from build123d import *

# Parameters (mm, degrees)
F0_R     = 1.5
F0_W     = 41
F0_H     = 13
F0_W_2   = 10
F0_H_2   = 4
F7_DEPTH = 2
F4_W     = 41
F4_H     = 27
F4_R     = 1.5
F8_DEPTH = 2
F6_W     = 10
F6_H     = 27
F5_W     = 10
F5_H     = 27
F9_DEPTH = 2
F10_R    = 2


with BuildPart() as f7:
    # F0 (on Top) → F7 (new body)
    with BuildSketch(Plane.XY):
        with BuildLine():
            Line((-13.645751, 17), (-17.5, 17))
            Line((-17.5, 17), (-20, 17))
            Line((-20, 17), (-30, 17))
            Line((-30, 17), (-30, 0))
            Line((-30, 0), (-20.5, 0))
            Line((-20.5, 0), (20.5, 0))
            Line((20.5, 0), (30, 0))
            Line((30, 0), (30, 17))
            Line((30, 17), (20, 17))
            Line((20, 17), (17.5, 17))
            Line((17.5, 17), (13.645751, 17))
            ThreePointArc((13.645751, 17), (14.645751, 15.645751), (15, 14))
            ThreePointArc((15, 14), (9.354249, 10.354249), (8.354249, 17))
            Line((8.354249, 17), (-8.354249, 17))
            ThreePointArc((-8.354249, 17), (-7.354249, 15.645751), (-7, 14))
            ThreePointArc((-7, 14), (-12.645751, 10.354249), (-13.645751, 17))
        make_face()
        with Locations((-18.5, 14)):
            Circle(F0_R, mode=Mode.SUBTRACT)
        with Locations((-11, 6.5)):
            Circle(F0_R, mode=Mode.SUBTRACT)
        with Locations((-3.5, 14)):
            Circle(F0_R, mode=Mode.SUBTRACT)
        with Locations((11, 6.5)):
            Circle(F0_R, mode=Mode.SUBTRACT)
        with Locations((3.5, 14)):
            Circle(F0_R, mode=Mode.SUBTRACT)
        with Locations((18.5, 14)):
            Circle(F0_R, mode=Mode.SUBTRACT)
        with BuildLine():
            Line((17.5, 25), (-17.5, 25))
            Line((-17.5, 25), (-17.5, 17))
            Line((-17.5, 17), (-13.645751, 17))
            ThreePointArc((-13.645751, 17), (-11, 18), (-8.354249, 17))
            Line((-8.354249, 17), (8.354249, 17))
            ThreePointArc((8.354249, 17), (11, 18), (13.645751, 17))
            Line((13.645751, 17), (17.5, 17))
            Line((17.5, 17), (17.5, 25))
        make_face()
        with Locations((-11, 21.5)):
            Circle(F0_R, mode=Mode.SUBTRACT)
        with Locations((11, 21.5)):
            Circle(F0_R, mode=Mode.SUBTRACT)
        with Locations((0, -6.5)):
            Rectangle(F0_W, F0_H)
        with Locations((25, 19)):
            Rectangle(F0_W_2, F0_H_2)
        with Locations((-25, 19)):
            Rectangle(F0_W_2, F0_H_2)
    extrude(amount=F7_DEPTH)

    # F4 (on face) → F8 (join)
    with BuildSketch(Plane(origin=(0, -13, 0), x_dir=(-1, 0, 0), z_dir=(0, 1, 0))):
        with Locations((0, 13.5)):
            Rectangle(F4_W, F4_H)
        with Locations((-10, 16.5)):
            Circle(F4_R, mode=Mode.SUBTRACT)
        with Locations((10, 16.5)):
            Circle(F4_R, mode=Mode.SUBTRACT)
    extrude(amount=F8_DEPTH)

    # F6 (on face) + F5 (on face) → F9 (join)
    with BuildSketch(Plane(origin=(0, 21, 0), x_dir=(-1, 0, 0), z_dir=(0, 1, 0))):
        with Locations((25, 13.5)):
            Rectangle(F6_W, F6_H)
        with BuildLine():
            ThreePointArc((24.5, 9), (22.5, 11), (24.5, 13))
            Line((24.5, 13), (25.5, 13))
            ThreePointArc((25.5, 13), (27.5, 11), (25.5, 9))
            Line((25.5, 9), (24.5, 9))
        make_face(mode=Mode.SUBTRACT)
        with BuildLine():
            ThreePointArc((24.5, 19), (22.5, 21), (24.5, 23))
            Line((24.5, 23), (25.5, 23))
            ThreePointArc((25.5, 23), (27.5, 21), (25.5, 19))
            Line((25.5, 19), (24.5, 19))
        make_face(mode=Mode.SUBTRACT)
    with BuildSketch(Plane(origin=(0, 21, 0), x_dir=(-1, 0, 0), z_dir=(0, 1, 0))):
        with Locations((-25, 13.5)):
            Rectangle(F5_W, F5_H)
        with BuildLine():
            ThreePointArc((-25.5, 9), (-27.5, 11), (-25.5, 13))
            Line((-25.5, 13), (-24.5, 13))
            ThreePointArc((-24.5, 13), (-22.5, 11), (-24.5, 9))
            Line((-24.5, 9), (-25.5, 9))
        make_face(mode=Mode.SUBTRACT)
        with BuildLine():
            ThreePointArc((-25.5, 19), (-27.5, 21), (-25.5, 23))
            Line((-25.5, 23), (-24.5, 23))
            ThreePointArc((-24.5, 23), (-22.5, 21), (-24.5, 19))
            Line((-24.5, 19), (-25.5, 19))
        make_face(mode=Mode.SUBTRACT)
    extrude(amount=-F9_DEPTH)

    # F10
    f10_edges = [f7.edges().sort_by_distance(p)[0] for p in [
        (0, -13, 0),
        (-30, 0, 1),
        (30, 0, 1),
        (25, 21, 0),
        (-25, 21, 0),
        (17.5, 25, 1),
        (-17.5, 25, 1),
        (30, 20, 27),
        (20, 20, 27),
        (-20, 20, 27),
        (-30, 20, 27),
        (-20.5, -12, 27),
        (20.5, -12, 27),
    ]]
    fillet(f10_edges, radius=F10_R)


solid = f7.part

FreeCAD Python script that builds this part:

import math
import FreeCAD as App
import Part
import Sketcher

V = App.Vector


def edges_at(feature, points):
    """Names of the edges that pass closest to the given points."""
    edges = feature.Shape.Edges
    near = lambda p: min(range(len(edges)), key=lambda i: edges[i].distToShape(Part.Vertex(*p))[0])
    return sorted({f"Edge{near(p) + 1}" for p in points})

doc = App.newDocument("Part")
params = doc.addObject("Spreadsheet::Sheet", "Params")
for row, (alias, value) in enumerate([
    ("sketch1_diameter", "3 mm"),
    ("sketch1_radius", "4 mm"),
    ("sketch1_width", "10 mm"),
    ("sketch1_width2", "41 mm"),
    ("sketch1_width3", "35 mm"),
    ("pad1_length", "2 mm"),
    ("sketch2_diameter", "3 mm"),
    ("sketch2_width", "41 mm"),
    ("sketch2_height", "27 mm"),
    ("pad2_length", "2 mm"),
    ("sketch3_radius", "2 mm"),
    ("sketch3_width", "10 mm"),
    ("sketch3_width2", "1 mm"),
    ("sketch3_height", "27 mm"),
    ("pad3_length", "2 mm"),
    ("fillet_radius", "2 mm"),
], start=1):
    params.set(f"A{row}", alias)
    params.set(f"B{row}", "=" + value)
    params.setAlias(f"B{row}", alias)

body = doc.addObject("PartDesign::Body", "Body")

# Sketch on XY plane
sketch1 = body.newObject("Sketcher::SketchObject", "Sketch")
sketch1.AttachmentSupport = (doc.getObject("XY_Plane"), [""])
sketch1.MapMode = "FlatFace"
sketch1.addGeometry(Part.LineSegment(V(-17.5, 17, 0), V(-20, 17, 0)), False)
sketch1.addGeometry(Part.LineSegment(V(-20, 17, 0), V(-20, 21, 0)), False)
sketch1.addGeometry(Part.LineSegment(V(-20, 21, 0), V(-30, 21, 0)), False)
sketch1.addGeometry(Part.LineSegment(V(-30, 21, 0), V(-30, 0, 0)), False)
sketch1.addGeometry(Part.LineSegment(V(-30, 0, 0), V(-20.5, 0, 0)), False)
sketch1.addGeometry(Part.LineSegment(V(-20.5, 0, 0), V(-20.5, -13, 0)), False)
sketch1.addGeometry(Part.LineSegment(V(-20.5, -13, 0), V(20.5, -13, 0)), False)
sketch1.addGeometry(Part.LineSegment(V(20.5, -13, 0), V(20.5, 0, 0)), False)
sketch1.addGeometry(Part.LineSegment(V(20.5, 0, 0), V(30, 0, 0)), False)
sketch1.addGeometry(Part.LineSegment(V(30, 0, 0), V(30, 21, 0)), False)
sketch1.addGeometry(Part.LineSegment(V(30, 21, 0), V(20, 21, 0)), False)
sketch1.addGeometry(Part.LineSegment(V(20, 21, 0), V(20, 17, 0)), False)
sketch1.addGeometry(Part.LineSegment(V(20, 17, 0), V(17.5, 17, 0)), False)
sketch1.addGeometry(Part.LineSegment(V(17.5, 17, 0), V(17.5, 25, 0)), False)
sketch1.addGeometry(Part.LineSegment(V(17.5, 25, 0), V(-17.5, 25, 0)), False)
sketch1.addGeometry(Part.LineSegment(V(-17.5, 25, 0), V(-17.5, 17, 0)), False)
sketch1.addGeometry(Part.Circle(V(-11, 6.5, 0), V(0, 0, 1), 1.5), False)
sketch1.addGeometry(Part.Circle(V(11, 6.5, 0), V(0, 0, 1), 1.5), False)
sketch1.addGeometry(Part.Circle(V(-18.5, 14, 0), V(0, 0, 1), 1.5), False)
sketch1.addGeometry(Part.ArcOfCircle(Part.Circle(V(-11, 14, 0), V(0, 0, 1), 4), math.radians(131), math.radians(360)), False)
sketch1.addGeometry(Part.ArcOfCircle(Part.Circle(V(-11, 14, 0), V(0, 0, 1), 4), math.radians(49), math.radians(131)), False)
sketch1.addGeometry(Part.ArcOfCircle(Part.Circle(V(-11, 14, 0), V(0, 0, 1), 4), math.radians(0), math.radians(49)), False)
sketch1.addGeometry(Part.Circle(V(-3.5, 14, 0), V(0, 0, 1), 1.5), False)
sketch1.addGeometry(Part.Circle(V(-11, 21.5, 0), V(0, 0, 1), 1.5), False)
sketch1.addGeometry(Part.Circle(V(3.5, 14, 0), V(0, 0, 1), 1.5), False)
sketch1.addGeometry(Part.ArcOfCircle(Part.Circle(V(11, 14, 0), V(0, 0, 1), 4), math.radians(131), math.radians(360)), False)
sketch1.addGeometry(Part.ArcOfCircle(Part.Circle(V(11, 14, 0), V(0, 0, 1), 4), math.radians(49), math.radians(131)), False)
sketch1.addGeometry(Part.ArcOfCircle(Part.Circle(V(11, 14, 0), V(0, 0, 1), 4), math.radians(0), math.radians(49)), False)
sketch1.addGeometry(Part.Circle(V(18.5, 14, 0), V(0, 0, 1), 1.5), False)
sketch1.addGeometry(Part.Circle(V(11, 21.5, 0), V(0, 0, 1), 1.5), False)
sketch1.addConstraint(Sketcher.Constraint("Coincident", 0, 2, 1, 1))
sketch1.addConstraint(Sketcher.Constraint("Coincident", 1, 2, 2, 1))
sketch1.addConstraint(Sketcher.Constraint("Coincident", 2, 2, 3, 1))
sketch1.addConstraint(Sketcher.Constraint("Coincident", 3, 2, 4, 1))
sketch1.addConstraint(Sketcher.Constraint("Coincident", 4, 2, 5, 1))
sketch1.addConstraint(Sketcher.Constraint("Coincident", 5, 2, 6, 1))
sketch1.addConstraint(Sketcher.Constraint("Coincident", 6, 2, 7, 1))
sketch1.addConstraint(Sketcher.Constraint("Coincident", 7, 2, 8, 1))
sketch1.addConstraint(Sketcher.Constraint("Coincident", 8, 2, 9, 1))
sketch1.addConstraint(Sketcher.Constraint("Coincident", 9, 2, 10, 1))
sketch1.addConstraint(Sketcher.Constraint("Coincident", 10, 2, 11, 1))
sketch1.addConstraint(Sketcher.Constraint("Coincident", 11, 2, 12, 1))
sketch1.addConstraint(Sketcher.Constraint("Coincident", 12, 2, 13, 1))
sketch1.addConstraint(Sketcher.Constraint("Coincident", 13, 2, 14, 1))
sketch1.addConstraint(Sketcher.Constraint("Coincident", 14, 2, 15, 1))
sketch1.addConstraint(Sketcher.Constraint("Coincident", 15, 2, 0, 1))
sketch1.addConstraint(Sketcher.Constraint("Tangent", 19, 1, 20, 2))
sketch1.addConstraint(Sketcher.Constraint("Tangent", 20, 1, 21, 2))
sketch1.addConstraint(Sketcher.Constraint("Tangent", 21, 1, 19, 2))
sketch1.addConstraint(Sketcher.Constraint("Tangent", 25, 1, 26, 2))
sketch1.addConstraint(Sketcher.Constraint("Tangent", 26, 1, 27, 2))
sketch1.addConstraint(Sketcher.Constraint("Tangent", 27, 1, 25, 2))
sketch1.addConstraint(Sketcher.Constraint("Horizontal", 0))
sketch1.addConstraint(Sketcher.Constraint("Vertical", 1))
sketch1.addConstraint(Sketcher.Constraint("Horizontal", 2))
sketch1.addConstraint(Sketcher.Constraint("Vertical", 3))
sketch1.addConstraint(Sketcher.Constraint("Horizontal", 4))
sketch1.addConstraint(Sketcher.Constraint("Vertical", 5))
sketch1.addConstraint(Sketcher.Constraint("Horizontal", 6))
sketch1.addConstraint(Sketcher.Constraint("Vertical", 7))
sketch1.addConstraint(Sketcher.Constraint("Horizontal", 8))
sketch1.addConstraint(Sketcher.Constraint("Vertical", 9))
sketch1.addConstraint(Sketcher.Constraint("Horizontal", 10))
sketch1.addConstraint(Sketcher.Constraint("Vertical", 11))
sketch1.addConstraint(Sketcher.Constraint("Horizontal", 12))
sketch1.addConstraint(Sketcher.Constraint("Vertical", 13))
sketch1.addConstraint(Sketcher.Constraint("Horizontal", 14))
sketch1.addConstraint(Sketcher.Constraint("Vertical", 15))
sketch1.addConstraint(Sketcher.Constraint("Equal", 16, 17))
sketch1.addConstraint(Sketcher.Constraint("Equal", 17, 18))
sketch1.addConstraint(Sketcher.Constraint("Equal", 18, 22))
sketch1.addConstraint(Sketcher.Constraint("Equal", 22, 23))
sketch1.addConstraint(Sketcher.Constraint("Equal", 23, 24))
sketch1.addConstraint(Sketcher.Constraint("Equal", 20, 25))
sketch1.addConstraint(Sketcher.Constraint("Equal", 24, 28))
sketch1.addConstraint(Sketcher.Constraint("Equal", 28, 29))
sketch1.addConstraint(Sketcher.Constraint("Symmetric", 4, 2, 7, 2, -1, 1))
sketch1.addConstraint(Sketcher.Constraint("Symmetric", 16, 3, 17, 3, -2))
sketch1.addConstraint(Sketcher.Constraint("Symmetric", 22, 3, 24, 3, -2))
sketch1.addConstraint(Sketcher.Constraint("Symmetric", 19, 3, 25, 3, -2))
sketch1.addConstraint(Sketcher.Constraint("Symmetric", 18, 3, 28, 3, -2))
sketch1.addConstraint(Sketcher.Constraint("Symmetric", 23, 3, 29, 3, -2))
sketch1.addConstraint(Sketcher.Constraint("Symmetric", 3, 2, 8, 2, -2))
sketch1.addConstraint(Sketcher.Constraint("Symmetric", 1, 2, 10, 2, -2))
sketch1.addConstraint(Sketcher.Constraint("Symmetric", 12, 2, 15, 2, -2))
sketch1.addConstraint(Sketcher.Constraint("Horizontal", 18, 3, 19, 3))
sketch1.addConstraint(Sketcher.Constraint("Horizontal", 21, 3, 22, 3))
sketch1.addConstraint(Sketcher.Constraint("Horizontal", 15, 2, 19, 1))
sketch1.addConstraint(Sketcher.Constraint("Horizontal", 19, 1, 20, 1))
sketch1.addConstraint(Sketcher.Constraint("Horizontal", 28, 3, 21, 1))
sketch1.addConstraint(Sketcher.Constraint("Horizontal", 20, 1, 25, 1))
sketch1.addConstraint(Sketcher.Constraint("Horizontal", 25, 1, 26, 1))
sketch1.addConstraint(Sketcher.Constraint("Horizontal", 21, 1, 27, 1))
sketch1.addConstraint(Sketcher.Constraint("Vertical", 16, 3, 19, 3))
sketch1.addConstraint(Sketcher.Constraint("Vertical", 20, 3, 23, 3))
sketch1.addConstraint(Sketcher.Constraint("Diameter", 16, 3.0))
sketch1.addConstraint(Sketcher.Constraint("Radius", 19, 4.0))
sketch1.addConstraint(Sketcher.Constraint("DistanceX", 2, 2, 2, 1, 10.0))
sketch1.addConstraint(Sketcher.Constraint("DistanceX", 6, 1, 6, 2, 41.0))
sketch1.addConstraint(Sketcher.Constraint("DistanceX", 14, 2, 14, 1, 35.0))
sketch1.addConstraint(Sketcher.Constraint("DistanceY", 1, 1, 1, 2, 4.0))
sketch1.addConstraint(Sketcher.Constraint("DistanceY", 3, 2, 3, 1, 21.0))
sketch1.addConstraint(Sketcher.Constraint("DistanceY", 5, 2, 5, 1, 13.0))
sketch1.addConstraint(Sketcher.Constraint("DistanceY", 13, 1, 13, 2, 8.0))
sketch1.addConstraint(Sketcher.Constraint("DistanceX", 0, 2, 0, 1, 2.5))
sketch1.addConstraint(Sketcher.Constraint("DistanceX", 16, 3, -1, 1, 11.0))
sketch1.addConstraint(Sketcher.Constraint("DistanceY", -1, 1, 18, 3, 14.0))
sketch1.addConstraint(Sketcher.Constraint("DistanceX", 18, 3, 22, 3, 15.0))
sketch1.addConstraint(Sketcher.Constraint("DistanceX", 22, 3, 24, 3, 7.0))
sketch1.addConstraint(Sketcher.Constraint("DistanceY", -1, 1, 16, 3, 6.5))
sketch1.addConstraint(Sketcher.Constraint("DistanceY", -1, 1, 23, 3, 21.5))
sketch1.setExpression("Constraints[65]", "Params.sketch1_diameter")
sketch1.setExpression("Constraints[66]", "Params.sketch1_radius")
sketch1.setExpression("Constraints[67]", "Params.sketch1_width")
sketch1.setExpression("Constraints[68]", "Params.sketch1_width2")
sketch1.setExpression("Constraints[69]", "Params.sketch1_width3")
pad1 = body.newObject("PartDesign::Pad", "Pad")
pad1.Profile = sketch1
pad1.setExpression("Length", "Params.pad1_length")

# Sketch on XZ plane
sketch2 = body.newObject("Sketcher::SketchObject", "Sketch001")
sketch2.AttachmentSupport = (doc.getObject("XZ_Plane"), [""])
sketch2.MapMode = "FlatFace"
sketch2.AttachmentOffset = App.Placement(V(0, 0, 13), App.Rotation())
sketch2.addGeometry(Part.LineSegment(V(20.5, 27, 0), V(20.5, 0, 0)), False)
sketch2.addGeometry(Part.LineSegment(V(20.5, 0, 0), V(-20.5, 0, 0)), False)
sketch2.addGeometry(Part.LineSegment(V(-20.5, 0, 0), V(-20.5, 27, 0)), False)
sketch2.addGeometry(Part.LineSegment(V(-20.5, 27, 0), V(20.5, 27, 0)), False)
sketch2.addGeometry(Part.Circle(V(10, 16.5, 0), V(0, 0, 1), 1.5), False)
sketch2.addGeometry(Part.Circle(V(-10, 16.5, 0), V(0, 0, 1), 1.5), False)
sketch2.addConstraint(Sketcher.Constraint("Coincident", 0, 2, 1, 1))
sketch2.addConstraint(Sketcher.Constraint("Coincident", 1, 2, 2, 1))
sketch2.addConstraint(Sketcher.Constraint("Coincident", 2, 2, 3, 1))
sketch2.addConstraint(Sketcher.Constraint("Coincident", 3, 2, 0, 1))
sketch2.addConstraint(Sketcher.Constraint("Vertical", 0))
sketch2.addConstraint(Sketcher.Constraint("Horizontal", 1))
sketch2.addConstraint(Sketcher.Constraint("Vertical", 2))
sketch2.addConstraint(Sketcher.Constraint("Horizontal", 3))
sketch2.addConstraint(Sketcher.Constraint("Equal", 4, 5))
sketch2.addConstraint(Sketcher.Constraint("Symmetric", 0, 2, 1, 2, -1, 1))
sketch2.addConstraint(Sketcher.Constraint("Symmetric", 4, 3, 5, 3, -2))
sketch2.addConstraint(Sketcher.Constraint("Diameter", 4, 3.0))
sketch2.addConstraint(Sketcher.Constraint("DistanceX", 1, 2, 1, 1, 41.0))
sketch2.addConstraint(Sketcher.Constraint("DistanceY", 0, 2, 0, 1, 27.0))
sketch2.addConstraint(Sketcher.Constraint("DistanceX", -1, 1, 4, 3, 10.0))
sketch2.addConstraint(Sketcher.Constraint("DistanceY", -1, 1, 4, 3, 16.5))
sketch2.setExpression("Constraints[11]", "Params.sketch2_diameter")
sketch2.setExpression("Constraints[12]", "Params.sketch2_width")
sketch2.setExpression("Constraints[13]", "Params.sketch2_height")
pad2 = body.newObject("PartDesign::Pad", "Pad001")
pad2.Profile = sketch2
pad2.setExpression("Length", "Params.pad2_length")
pad2.Reversed = True

# Sketch on XZ plane
sketch3 = body.newObject("Sketcher::SketchObject", "Sketch002")
sketch3.AttachmentSupport = (doc.getObject("XZ_Plane"), [""])
sketch3.MapMode = "FlatFace"
sketch3.AttachmentOffset = App.Placement(V(0, 0, -21), App.Rotation())
sketch3.addGeometry(Part.LineSegment(V(-20, 27, 0), V(-20, 0, 0)), False)
sketch3.addGeometry(Part.LineSegment(V(-20, 0, 0), V(-30, 0, 0)), False)
sketch3.addGeometry(Part.LineSegment(V(-30, 0, 0), V(-30, 27, 0)), False)
sketch3.addGeometry(Part.LineSegment(V(-30, 27, 0), V(-20, 27, 0)), False)
sketch3.addGeometry(Part.LineSegment(V(-25.5, 9, 0), V(-24.5, 9, 0)), False)
sketch3.addGeometry(Part.ArcOfCircle(Part.Circle(V(-24.5, 11, 0), V(0, 0, 1), 2), math.radians(-90), math.radians(90)), False)
sketch3.addGeometry(Part.LineSegment(V(-24.5, 13, 0), V(-25.5, 13, 0)), False)
sketch3.addGeometry(Part.ArcOfCircle(Part.Circle(V(-25.5, 11, 0), V(0, 0, 1), 2), math.radians(90), math.radians(270)), False)
sketch3.addGeometry(Part.LineSegment(V(-25.5, 19, 0), V(-24.5, 19, 0)), False)
sketch3.addGeometry(Part.ArcOfCircle(Part.Circle(V(-24.5, 21, 0), V(0, 0, 1), 2), math.radians(-90), math.radians(90)), False)
sketch3.addGeometry(Part.LineSegment(V(-24.5, 23, 0), V(-25.5, 23, 0)), False)
sketch3.addGeometry(Part.ArcOfCircle(Part.Circle(V(-25.5, 21, 0), V(0, 0, 1), 2), math.radians(90), math.radians(270)), False)
sketch3.addGeometry(Part.LineSegment(V(30, 27, 0), V(30, 0, 0)), False)
sketch3.addGeometry(Part.LineSegment(V(30, 0, 0), V(20, 0, 0)), False)
sketch3.addGeometry(Part.LineSegment(V(20, 0, 0), V(20, 27, 0)), False)
sketch3.addGeometry(Part.LineSegment(V(20, 27, 0), V(30, 27, 0)), False)
sketch3.addGeometry(Part.LineSegment(V(24.5, 9, 0), V(25.5, 9, 0)), False)
sketch3.addGeometry(Part.ArcOfCircle(Part.Circle(V(25.5, 11, 0), V(0, 0, 1), 2), math.radians(-90), math.radians(90)), False)
sketch3.addGeometry(Part.LineSegment(V(25.5, 13, 0), V(24.5, 13, 0)), False)
sketch3.addGeometry(Part.ArcOfCircle(Part.Circle(V(24.5, 11, 0), V(0, 0, 1), 2), math.radians(90), math.radians(270)), False)
sketch3.addGeometry(Part.LineSegment(V(24.5, 19, 0), V(25.5, 19, 0)), False)
sketch3.addGeometry(Part.ArcOfCircle(Part.Circle(V(25.5, 21, 0), V(0, 0, 1), 2), math.radians(-90), math.radians(90)), False)
sketch3.addGeometry(Part.LineSegment(V(25.5, 23, 0), V(24.5, 23, 0)), False)
sketch3.addGeometry(Part.ArcOfCircle(Part.Circle(V(24.5, 21, 0), V(0, 0, 1), 2), math.radians(90), math.radians(270)), False)
sketch3.addConstraint(Sketcher.Constraint("Coincident", 0, 2, 1, 1))
sketch3.addConstraint(Sketcher.Constraint("Coincident", 1, 2, 2, 1))
sketch3.addConstraint(Sketcher.Constraint("Coincident", 2, 2, 3, 1))
sketch3.addConstraint(Sketcher.Constraint("Coincident", 3, 2, 0, 1))
sketch3.addConstraint(Sketcher.Constraint("Tangent", 4, 2, 5, 1))
sketch3.addConstraint(Sketcher.Constraint("Tangent", 5, 2, 6, 1))
sketch3.addConstraint(Sketcher.Constraint("Tangent", 6, 2, 7, 1))
sketch3.addConstraint(Sketcher.Constraint("Tangent", 7, 2, 4, 1))
sketch3.addConstraint(Sketcher.Constraint("Tangent", 8, 2, 9, 1))
sketch3.addConstraint(Sketcher.Constraint("Tangent", 9, 2, 10, 1))
sketch3.addConstraint(Sketcher.Constraint("Tangent", 10, 2, 11, 1))
sketch3.addConstraint(Sketcher.Constraint("Tangent", 11, 2, 8, 1))
sketch3.addConstraint(Sketcher.Constraint("Coincident", 12, 2, 13, 1))
sketch3.addConstraint(Sketcher.Constraint("Coincident", 13, 2, 14, 1))
sketch3.addConstraint(Sketcher.Constraint("Coincident", 14, 2, 15, 1))
sketch3.addConstraint(Sketcher.Constraint("Coincident", 15, 2, 12, 1))
sketch3.addConstraint(Sketcher.Constraint("Tangent", 16, 2, 17, 1))
sketch3.addConstraint(Sketcher.Constraint("Tangent", 17, 2, 18, 1))
sketch3.addConstraint(Sketcher.Constraint("Tangent", 18, 2, 19, 1))
sketch3.addConstraint(Sketcher.Constraint("Tangent", 19, 2, 16, 1))
sketch3.addConstraint(Sketcher.Constraint("Tangent", 20, 2, 21, 1))
sketch3.addConstraint(Sketcher.Constraint("Tangent", 21, 2, 22, 1))
sketch3.addConstraint(Sketcher.Constraint("Tangent", 22, 2, 23, 1))
sketch3.addConstraint(Sketcher.Constraint("Tangent", 23, 2, 20, 1))
sketch3.addConstraint(Sketcher.Constraint("Vertical", 0))
sketch3.addConstraint(Sketcher.Constraint("Horizontal", 1))
sketch3.addConstraint(Sketcher.Constraint("Vertical", 2))
sketch3.addConstraint(Sketcher.Constraint("Horizontal", 3))
sketch3.addConstraint(Sketcher.Constraint("Horizontal", 4))
sketch3.addConstraint(Sketcher.Constraint("Horizontal", 6))
sketch3.addConstraint(Sketcher.Constraint("Horizontal", 8))
sketch3.addConstraint(Sketcher.Constraint("Horizontal", 10))
sketch3.addConstraint(Sketcher.Constraint("Vertical", 12))
sketch3.addConstraint(Sketcher.Constraint("Horizontal", 13))
sketch3.addConstraint(Sketcher.Constraint("Vertical", 14))
sketch3.addConstraint(Sketcher.Constraint("Horizontal", 15))
sketch3.addConstraint(Sketcher.Constraint("Horizontal", 16))
sketch3.addConstraint(Sketcher.Constraint("Horizontal", 18))
sketch3.addConstraint(Sketcher.Constraint("Horizontal", 20))
sketch3.addConstraint(Sketcher.Constraint("Horizontal", 22))
sketch3.addConstraint(Sketcher.Constraint("Equal", 7, 9))
sketch3.addConstraint(Sketcher.Constraint("Equal", 11, 17))
sketch3.addConstraint(Sketcher.Constraint("Equal", 19, 21))
sketch3.addConstraint(Sketcher.Constraint("Symmetric", 1, 2, 12, 2, -1, 1))
sketch3.addConstraint(Sketcher.Constraint("Symmetric", 7, 3, 17, 3, -2))
sketch3.addConstraint(Sketcher.Constraint("Symmetric", 11, 3, 21, 3, -2))
sketch3.addConstraint(Sketcher.Constraint("Symmetric", 0, 2, 13, 2, -2))
sketch3.addConstraint(Sketcher.Constraint("Horizontal", 3, 2, 14, 2))
sketch3.addConstraint(Sketcher.Constraint("Vertical", 5, 3, 9, 3))
sketch3.addConstraint(Sketcher.Constraint("Vertical", 7, 3, 11, 3))
sketch3.addConstraint(Sketcher.Constraint("Vertical", 19, 3, 23, 3))
sketch3.addConstraint(Sketcher.Constraint("Equal", 10, 16))
sketch3.addConstraint(Sketcher.Constraint("Radius", 5, 2.0))
sketch3.addConstraint(Sketcher.Constraint("DistanceX", 1, 2, 1, 1, 10.0))
sketch3.addConstraint(Sketcher.Constraint("DistanceX", 4, 1, 4, 2, 1.0))
sketch3.addConstraint(Sketcher.Constraint("DistanceY", 0, 2, 0, 1, 27.0))
sketch3.addConstraint(Sketcher.Constraint("DistanceY", -1, 1, 5, 3, 11.0))
sketch3.addConstraint(Sketcher.Constraint("DistanceY", -1, 1, 9, 3, 21.0))
sketch3.addConstraint(Sketcher.Constraint("DistanceX", 0, 2, -1, 1, 20.0))
sketch3.addConstraint(Sketcher.Constraint("DistanceX", 5, 3, 17, 3, 50.0))
sketch3.setExpression("Constraints[52]", "Params.sketch3_radius")
sketch3.setExpression("Constraints[53]", "Params.sketch3_width")
sketch3.setExpression("Constraints[54]", "Params.sketch3_width2")
sketch3.setExpression("Constraints[55]", "Params.sketch3_height")
pad3 = body.newObject("PartDesign::Pad", "Pad002")
pad3.Profile = sketch3
pad3.setExpression("Length", "Params.pad3_length")
doc.recompute()

fillet = body.newObject("PartDesign::Fillet", "Fillet")
fillet.Base = (pad3, edges_at(pad3, [
    (0, -13, 0),
    (-30, 0, 1),
    (30, 0, 1),
    (25, 21, 0),
    (-25, 21, 0),
    (17.5, 25, 1),
    (-17.5, 25, 1),
    (30, 20, 27),
    (20, 20, 27),
    (-20, 20, 27),
    (-30, 20, 27),
    (-20.5, -12, 27),
    (20.5, -12, 27),
]))
fillet.setExpression("Radius", "Params.fillet_radius")

doc.recompute()
